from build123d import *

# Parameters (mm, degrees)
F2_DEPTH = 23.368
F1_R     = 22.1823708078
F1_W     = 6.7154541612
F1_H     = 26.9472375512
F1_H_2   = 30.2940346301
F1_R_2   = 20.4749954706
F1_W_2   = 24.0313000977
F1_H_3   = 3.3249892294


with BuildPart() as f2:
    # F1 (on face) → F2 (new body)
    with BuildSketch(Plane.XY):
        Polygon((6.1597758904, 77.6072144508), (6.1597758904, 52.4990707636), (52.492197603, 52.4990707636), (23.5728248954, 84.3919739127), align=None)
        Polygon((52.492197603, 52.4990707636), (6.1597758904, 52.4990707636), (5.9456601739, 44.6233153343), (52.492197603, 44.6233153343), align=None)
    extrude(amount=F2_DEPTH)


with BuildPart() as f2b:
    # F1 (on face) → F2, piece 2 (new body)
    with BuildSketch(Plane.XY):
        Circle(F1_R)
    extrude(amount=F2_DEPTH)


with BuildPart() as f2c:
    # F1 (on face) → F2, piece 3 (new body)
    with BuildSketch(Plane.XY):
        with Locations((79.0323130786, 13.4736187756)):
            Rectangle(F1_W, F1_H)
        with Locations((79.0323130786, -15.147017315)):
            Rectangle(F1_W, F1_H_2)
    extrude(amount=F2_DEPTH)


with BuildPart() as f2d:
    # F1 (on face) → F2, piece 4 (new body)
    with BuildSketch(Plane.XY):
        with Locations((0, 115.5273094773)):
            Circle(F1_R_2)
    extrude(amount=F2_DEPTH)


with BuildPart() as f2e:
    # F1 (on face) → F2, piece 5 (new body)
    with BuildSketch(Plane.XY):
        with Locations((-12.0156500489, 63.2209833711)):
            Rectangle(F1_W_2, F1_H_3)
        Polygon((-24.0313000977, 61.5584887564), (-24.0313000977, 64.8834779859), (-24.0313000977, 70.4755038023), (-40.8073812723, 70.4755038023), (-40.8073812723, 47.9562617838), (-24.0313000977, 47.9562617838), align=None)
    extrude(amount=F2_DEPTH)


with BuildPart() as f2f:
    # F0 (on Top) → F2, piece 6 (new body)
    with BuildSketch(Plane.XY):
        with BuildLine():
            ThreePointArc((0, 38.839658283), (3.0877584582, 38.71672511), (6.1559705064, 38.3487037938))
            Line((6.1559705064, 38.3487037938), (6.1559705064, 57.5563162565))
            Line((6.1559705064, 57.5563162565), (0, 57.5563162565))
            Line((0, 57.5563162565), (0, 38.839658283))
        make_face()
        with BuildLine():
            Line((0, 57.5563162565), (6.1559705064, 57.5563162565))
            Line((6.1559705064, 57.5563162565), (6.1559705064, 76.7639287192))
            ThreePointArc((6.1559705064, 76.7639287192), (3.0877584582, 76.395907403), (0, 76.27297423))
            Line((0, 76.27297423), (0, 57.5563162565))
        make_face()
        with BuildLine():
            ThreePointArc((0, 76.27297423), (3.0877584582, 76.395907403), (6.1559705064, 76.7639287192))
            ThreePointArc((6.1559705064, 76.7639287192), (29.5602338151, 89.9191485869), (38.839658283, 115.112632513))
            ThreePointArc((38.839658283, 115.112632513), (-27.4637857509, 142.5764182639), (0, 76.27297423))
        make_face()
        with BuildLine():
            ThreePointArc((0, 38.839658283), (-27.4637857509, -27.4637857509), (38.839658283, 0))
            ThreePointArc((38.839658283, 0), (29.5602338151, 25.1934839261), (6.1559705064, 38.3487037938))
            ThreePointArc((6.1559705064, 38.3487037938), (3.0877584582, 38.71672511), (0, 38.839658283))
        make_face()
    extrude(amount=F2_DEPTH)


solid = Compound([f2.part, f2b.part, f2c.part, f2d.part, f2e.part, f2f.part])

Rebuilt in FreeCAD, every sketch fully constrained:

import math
import FreeCAD as App
import Part
import Sketcher

V = App.Vector
Q = App.Units.Quantity

doc = App.newDocument("Part")
body = doc.addObject("PartDesign::Body", "Body")

# Sketch on XY plane
sketch1 = body.newObject("Sketcher::SketchObject", "Sketch")
sketch1.AttachmentSupport = (doc.getObject("XY_Plane"), [""])
sketch1.MapMode = "FlatFace"
sketch1.addGeometry([
    Part.LineSegment(V(6.159776, 77.607214, 0), V(6.159776, 52.499071, 0)),  # 0
    Part.LineSegment(V(6.159776, 52.499071, 0), V(5.94566, 44.623315, 0)),  # 1
    Part.LineSegment(V(5.94566, 44.623315, 0), V(52.492198, 44.623315, 0)),  # 2
    Part.LineSegment(V(52.492198, 44.623315, 0), V(52.492198, 52.499071, 0)),  # 3
    Part.LineSegment(V(52.492198, 52.499071, 0), V(23.572825, 84.391974, 0)),  # 4
    Part.LineSegment(V(23.572825, 84.391974, 0), V(6.159776, 77.607214, 0)),  # 5
], False)
sketch1.addConstraint([
    Sketcher.Constraint("Coincident", 0, 2, 1, 1),
    Sketcher.Constraint("Coincident", 1, 2, 2, 1),
    Sketcher.Constraint("Coincident", 2, 2, 3, 1),
    Sketcher.Constraint("Coincident", 3, 2, 4, 1),
    Sketcher.Constraint("Coincident", 4, 2, 5, 1),
    Sketcher.Constraint("Coincident", 5, 2, 0, 1),
    Sketcher.Constraint("Vertical", 0),
    Sketcher.Constraint("Horizontal", 2),
    Sketcher.Constraint("Vertical", 3),
    Sketcher.Constraint("Horizontal", 0, 2, 3, 2),
    Sketcher.Constraint("DistanceY", 1, 2, 5, 2, Q("32.983899 mm")),
    Sketcher.Constraint("DistanceX", 2, 1, 2, 2, Q("46.546537 mm")),
    Sketcher.Constraint("DistanceY", 0, 2, 0, 1, Q("25.108144 mm")),
    Sketcher.Constraint("DistanceY", -1, 1, 0, 2, Q("52.499071 mm")),
    Sketcher.Constraint("DistanceX", -1, 1, 1, 2, Q("5.94566 mm")),
    Sketcher.Constraint("DistanceX", 0, 2, 2, 2, Q("46.332422 mm")),
    Sketcher.Constraint("DistanceX", 0, 2, 4, 2, Q("17.413049 mm")),
    Sketcher.Constraint("DistanceY", 1, 2, 4, 2, Q("39.768659 mm")),
])
pad1 = body.newObject("PartDesign::Pad", "Pad")
pad1.Profile = sketch1
pad1.Length = Q("0.92 in")
body2 = doc.addObject("PartDesign::Body", "Body001")

# Sketch on XY plane
sketch2 = body2.newObject("Sketcher::SketchObject", "Sketch001")
sketch2.AttachmentSupport = (doc.getObject("XY_Plane001"), [""])
sketch2.MapMode = "FlatFace"
sketch2.addGeometry(Part.Circle(V(0, 0, 0), V(0, 0, 1), 22.182371), False)
sketch2.addConstraint([
    Sketcher.Constraint("Coincident", 0, 3, -1, 1),
    Sketcher.Constraint("Diameter", 0, Q("44.364742 mm")),
])
pad2 = body2.newObject("PartDesign::Pad", "Pad001")
pad2.Profile = sketch2
pad2.Length = Q("0.92 in")
body3 = doc.addObject("PartDesign::Body", "Body002")

# Sketch on XY plane
sketch3 = body3.newObject("Sketcher::SketchObject", "Sketch002")
sketch3.AttachmentSupport = (doc.getObject("XY_Plane002"), [""])
sketch3.MapMode = "FlatFace"
sketch3.addGeometry([
    Part.LineSegment(V(75.674586, 26.947238, 0), V(75.674586, -30.294035, 0)),
    Part.LineSegment(V(75.674586, -30.294035, 0), V(82.39004, -30.294035, 0)),
    Part.LineSegment(V(82.39004, -30.294035, 0), V(82.39004, 26.947238, 0)),
    Part.LineSegment(V(82.39004, 26.947238, 0), V(75.674586, 26.947238, 0)),
], False)
sketch3.addConstraint([
    Sketcher.Constraint("Coincident", 0, 2, 1, 1),
    Sketcher.Constraint("Coincident", 1, 2, 2, 1),
    Sketcher.Constraint("Coincident", 2, 2, 3, 1),
    Sketcher.Constraint("Coincident", 3, 2, 0, 1),
    Sketcher.Constraint("Vertical", 0),
    Sketcher.Constraint("Horizontal", 1),
    Sketcher.Constraint("Vertical", 2),
    Sketcher.Constraint("Horizontal", 3),
    Sketcher.Constraint("DistanceX", 1, 1, 1, 2, Q("6.715454 mm")),
    Sketcher.Constraint("DistanceY", 0, 2, 0, 1, Q("57.241272 mm")),
    Sketcher.Constraint("DistanceX", -1, 1, 1, 2, Q("82.39004 mm")),
    Sketcher.Constraint("DistanceY", 0, 2, -1, 1, Q("30.294035 mm")),
])
pad3 = body3.newObject("PartDesign::Pad", "Pad002")
pad3.Profile = sketch3
pad3.Length = Q("0.92 in")
body4 = doc.addObject("PartDesign::Body", "Body003")

# Sketch on XY plane
sketch4 = body4.newObject("Sketcher::SketchObject", "Sketch003")
sketch4.AttachmentSupport = (doc.getObject("XY_Plane003"), [""])
sketch4.MapMode = "FlatFace"
sketch4.addGeometry(Part.Circle(V(0, 115.527309, 0), V(0, 0, 1), 20.474995), False)
sketch4.addConstraint([
    Sketcher.Constraint("PointOnObject", 0, 3, -2),
    Sketcher.Constraint("Diameter", 0, Q("40.949991 mm")),
    Sketcher.Constraint("DistanceY", -1, 1, 0, 3, Q("115.527309 mm")),
])
pad4 = body4.newObject("PartDesign::Pad", "Pad003")
pad4.Profile = sketch4
pad4.Length = Q("0.92 in")
body5 = doc.addObject("PartDesign::Body", "Body004")

# Sketch on XY plane
sketch5 = body5.newObject("Sketcher::SketchObject", "Sketch004")
sketch5.AttachmentSupport = (doc.getObject("XY_Plane004"), [""])
sketch5.MapMode = "FlatFace"
sketch5.addGeometry([
    Part.LineSegment(V(-24.0313, 61.558489, 0), V(0, 61.558489, 0)),  # 0
    Part.LineSegment(V(0, 61.558489, 0), V(0, 64.883478, 0)),  # 1
    Part.LineSegment(V(0, 64.883478, 0), V(-24.0313, 64.883478, 0)),  # 2
    Part.LineSegment(V(-24.0313, 64.883478, 0), V(-24.0313, 70.475504, 0)),  # 3
    Part.LineSegment(V(-24.0313, 70.475504, 0), V(-40.807381, 70.475504, 0)),  # 4
    Part.LineSegment(V(-40.807381, 70.475504, 0), V(-40.807381, 47.956262, 0)),  # 5
    Part.LineSegment(V(-40.807381, 47.956262, 0), V(-24.0313, 47.956262, 0)),  # 6
    Part.LineSegment(V(-24.0313, 47.956262, 0), V(-24.0313, 61.558489, 0)),  # 7
], False)
sketch5.addConstraint([
    Sketcher.Constraint("Coincident", 0, 2, 1, 1),
    Sketcher.Constraint("Coincident", 1, 2, 2, 1),
    Sketcher.Constraint("Coincident", 2, 2, 3, 1),
    Sketcher.Constraint("Coincident", 3, 2, 4, 1),
    Sketcher.Constraint("Coincident", 4, 2, 5, 1),
    Sketcher.Constraint("Coincident", 5, 2, 6, 1),
    Sketcher.Constraint("Coincident", 6, 2, 7, 1),
    Sketcher.Constraint("Coincident", 7, 2, 0, 1),
    Sketcher.Constraint("Horizontal", 0),
    Sketcher.Constraint("Vertical", 1),
    Sketcher.Constraint("Horizontal", 2),
    Sketcher.Constraint("Vertical", 3),
    Sketcher.Constraint("Horizontal", 4),
    Sketcher.Constraint("Vertical", 5),
    Sketcher.Constraint("Horizontal", 6),
    Sketcher.Constraint("Vertical", 7),
    Sketcher.Constraint("PointOnObject", 0, 2, -2),
    Sketcher.Constraint("Vertical", 3, 2, 6, 2),
    Sketcher.Constraint("DistanceX", 0, 1, 0, 2, Q("24.0313 mm")),
    Sketcher.Constraint("DistanceX", 4, 2, 4, 1, Q("16.776081 mm")),
    Sketcher.Constraint("DistanceY", 1, 1, 1, 2, Q("3.324989 mm")),
    Sketcher.Constraint("DistanceY", 3, 1, 3, 2, Q("5.592026 mm")),
    Sketcher.Constraint("DistanceY", 5, 2, 5, 1, Q("22.519242 mm")),
    Sketcher.Constraint("DistanceY", -1, 1, 0, 2, Q("61.558489 mm")),
])
pad5 = body5.newObject("PartDesign::Pad", "Pad004")
pad5.Profile = sketch5
pad5.Length = Q("0.92 in")
body6 = doc.addObject("PartDesign::Body", "Body005")

# Sketch on XY plane
sketch6 = body6.newObject("Sketcher::SketchObject", "Sketch005")
sketch6.AttachmentSupport = (doc.getObject("XY_Plane005"), [""])
sketch6.MapMode = "FlatFace"
sketch6.addGeometry([
    Part.LineSegment(V(6.155971, 38.348704, 0), V(6.155971, 76.763929, 0)),  # 0
    Part.ArcOfCircle(Part.Circle(V(0, 115.112633, 0), V(0, 0, 1), 38.839658), math.radians(-80.880331), math.radians(0)),  # 1
    Part.ArcOfCircle(Part.Circle(V(0, 115.112633, 0), V(0, 0, 1), 38.839658), math.radians(0), math.radians(270)),  # 2
    Part.LineSegment(V(0, 76.272974, 0), V(0, 38.839658, 0)),  # 3
    Part.ArcOfCircle(Part.Circle(V(0, 0, 0), V(0, 0, 1), 38.839658), math.radians(90), math.radians(360)),  # 4
    Part.ArcOfCircle(Part.Circle(V(0, 0, 0), V(0, 0, 1), 38.839658), math.radians(0), math.radians(80.880331)),  # 5
], False)
sketch6.addConstraint([
    Sketcher.Constraint("Coincident", 0, 2, 1, 1),
    Sketcher.Constraint("Tangent", 1, 2, 2, 1),
    Sketcher.Constraint("Coincident", 2, 2, 3, 1),
    Sketcher.Constraint("Coincident", 3, 2, 4, 1),
    Sketcher.Constraint("Tangent", 4, 2, 5, 1),
    Sketcher.Constraint("Coincident", 5, 2, 0, 1),
    Sketcher.Constraint("Vertical", 0),
    Sketcher.Constraint("Vertical", 3),
    Sketcher.Constraint("Coincident", 4, 3, -1, 1),
    Sketcher.Constraint("Equal", 1, 2),
    Sketcher.Constraint("Equal", 2, 4),
    Sketcher.Constraint("Equal", 4, 5),
    Sketcher.Constraint("PointOnObject", 1, 3, -2),
    Sketcher.Constraint("PointOnObject", 2, 2, -2),
    Sketcher.Constraint("PointOnObject", 4, 2, -1),
    Sketcher.Constraint("Horizontal", 2, 3, 1, 2),
    Sketcher.Constraint("Radius", 1, Q("38.839658 mm")),
    Sketcher.Constraint("DistanceY", 0, 1, 0, 2, Q("38.415225 mm")),
    Sketcher.Constraint("DistanceY", 3, 2, 3, 1, Q("37.433316 mm")),
])
pad6 = body6.newObject("PartDesign::Pad", "Pad005")
pad6.Profile = sketch6
pad6.Length = Q("0.92 in")

doc.recompute()
